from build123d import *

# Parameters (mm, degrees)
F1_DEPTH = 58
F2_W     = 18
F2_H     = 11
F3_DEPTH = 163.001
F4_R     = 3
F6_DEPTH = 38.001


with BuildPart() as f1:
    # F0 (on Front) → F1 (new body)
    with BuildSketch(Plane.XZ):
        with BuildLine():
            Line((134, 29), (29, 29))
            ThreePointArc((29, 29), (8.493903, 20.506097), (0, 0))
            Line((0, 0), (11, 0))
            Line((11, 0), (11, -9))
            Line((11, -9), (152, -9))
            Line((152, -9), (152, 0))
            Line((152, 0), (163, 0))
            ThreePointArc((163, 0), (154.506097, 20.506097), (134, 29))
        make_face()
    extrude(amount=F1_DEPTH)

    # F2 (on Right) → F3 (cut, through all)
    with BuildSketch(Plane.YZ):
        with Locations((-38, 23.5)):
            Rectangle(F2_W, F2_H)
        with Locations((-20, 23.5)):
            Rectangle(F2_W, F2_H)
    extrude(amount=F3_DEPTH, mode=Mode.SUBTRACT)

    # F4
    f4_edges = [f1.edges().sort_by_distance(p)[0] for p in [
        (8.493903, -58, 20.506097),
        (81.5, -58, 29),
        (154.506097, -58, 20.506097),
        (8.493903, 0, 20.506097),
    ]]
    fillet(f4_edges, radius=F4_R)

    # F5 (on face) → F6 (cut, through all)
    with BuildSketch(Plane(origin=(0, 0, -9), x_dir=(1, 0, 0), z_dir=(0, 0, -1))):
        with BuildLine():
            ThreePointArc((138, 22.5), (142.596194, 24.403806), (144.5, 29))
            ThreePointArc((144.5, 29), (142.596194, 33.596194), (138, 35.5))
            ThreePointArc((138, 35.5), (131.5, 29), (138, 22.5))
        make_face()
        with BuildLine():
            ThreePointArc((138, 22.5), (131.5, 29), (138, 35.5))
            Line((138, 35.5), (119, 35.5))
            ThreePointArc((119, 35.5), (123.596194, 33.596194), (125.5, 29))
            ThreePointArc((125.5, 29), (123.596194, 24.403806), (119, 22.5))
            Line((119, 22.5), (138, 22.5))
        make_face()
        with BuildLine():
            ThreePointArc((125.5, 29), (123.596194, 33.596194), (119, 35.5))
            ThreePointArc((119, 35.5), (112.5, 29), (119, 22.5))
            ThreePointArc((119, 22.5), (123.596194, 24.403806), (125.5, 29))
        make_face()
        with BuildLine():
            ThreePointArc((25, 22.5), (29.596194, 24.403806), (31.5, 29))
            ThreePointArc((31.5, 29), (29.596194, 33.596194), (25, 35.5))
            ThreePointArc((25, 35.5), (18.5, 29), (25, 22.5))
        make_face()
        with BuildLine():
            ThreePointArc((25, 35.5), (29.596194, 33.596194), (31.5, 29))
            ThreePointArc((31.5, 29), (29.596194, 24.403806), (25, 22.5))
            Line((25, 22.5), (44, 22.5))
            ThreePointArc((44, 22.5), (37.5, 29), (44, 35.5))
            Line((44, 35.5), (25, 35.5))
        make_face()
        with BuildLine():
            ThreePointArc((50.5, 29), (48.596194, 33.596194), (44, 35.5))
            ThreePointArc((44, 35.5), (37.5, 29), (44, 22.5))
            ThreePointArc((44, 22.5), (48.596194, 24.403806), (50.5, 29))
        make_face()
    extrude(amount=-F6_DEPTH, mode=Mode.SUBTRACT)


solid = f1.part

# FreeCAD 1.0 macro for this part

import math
import FreeCAD as App
import Part
import Sketcher
from FreeCAD import Vector


def edges_at(feature, points):
    """Names of the edges that pass closest to the given points."""
    edges = feature.Shape.Edges
    near = lambda p: min(range(len(edges)), key=lambda i: edges[i].distToShape(Part.Vertex(*p))[0])
    return sorted({f"Edge{near(p) + 1}" for p in points})


def add_polygon(sketch, points):
    """Adds a closed chain of lines whose ends are joined by coincident constraints."""
    first, n = sketch.GeometryCount, len(points)
    for a, b in zip(points, points[1:] + points[:1]):
        sketch.addGeometry(Part.LineSegment(App.Vector(*a, 0), App.Vector(*b, 0)), False)
    for i in range(n):
        sketch.addConstraint(Sketcher.Constraint("Coincident", first + i, 2, first + (i + 1) % n, 1))

doc = App.newDocument("Part")
params = doc.addObject("Spreadsheet::Sheet", "Params")
for row, (alias, value) in enumerate([
    ("sketch1_radius", "28.999999 mm"),
    ("sketch1_width", "105 mm"),
    ("sketch1_width2", "11 mm"),
    ("sketch1_height", "9 mm"),
    ("pad1_length", "58 mm"),
    ("sketch2_width", "36 mm"),
    ("sketch2_height", "11 mm"),
    ("fillet_radius", "3 mm"),
    ("sketch3_radius", "6.5 mm"),
    ("sketch3_width", "19 mm"),
], start=1):
    params.set(f"A{row}", alias)
    params.set(f"B{row}", "=" + value)
    params.setAlias(f"B{row}", alias)

body = doc.addObject("PartDesign::Body", "Body")

# Sketch on XZ plane
sketch1 = body.newObject("Sketcher::SketchObject", "Sketch")
sketch1.AttachmentSupport = (doc.getObject("XZ_Plane"), [""])
sketch1.MapMode = "FlatFace"
sketch1.addGeometry([
    Part.LineSegment(Vector(134, 29, 0), Vector(29, 29, 0)),  # 0
    Part.ArcOfCircle(Part.Circle(Vector(28.999999, 0.000001, 0), Vector(0, 0, 1), 28.999999), math.radians(89.999998), math.radians(180.000002)),  # 1
    Part.LineSegment(Vector(0, 0, 0), Vector(11, 0, 0)),  # 2
    Part.LineSegment(Vector(11, 0, 0), Vector(11, -9, 0)),  # 3
    Part.LineSegment(Vector(11, -9, 0), Vector(152, -9, 0)),  # 4
    Part.LineSegment(Vector(152, -9, 0), Vector(152, 0, 0)),  # 5
    Part.LineSegment(Vector(152, 0, 0), Vector(163, 0, 0)),  # 6
    Part.ArcOfCircle(Part.Circle(Vector(134.000001, 0.000001, 0), Vector(0, 0, 1), 28.999999), math.radians(-0.000002), math.radians(90.000002)),  # 7
], False)
sketch1.addConstraint([
    Sketcher.Constraint("Tangent", 0, 2, 1, 1),
    Sketcher.Constraint("Coincident", 1, 2, 2, 1),
    Sketcher.Constraint("Coincident", 2, 2, 3, 1),
    Sketcher.Constraint("Coincident", 3, 2, 4, 1),
    Sketcher.Constraint("Coincident", 4, 2, 5, 1),
    Sketcher.Constraint("Coincident", 5, 2, 6, 1),
    Sketcher.Constraint("Coincident", 6, 2, 7, 1),
    Sketcher.Constraint("Tangent", 7, 2, 0, 1),
    Sketcher.Constraint("Horizontal", 0),
    Sketcher.Constraint("Horizontal", 2),
    Sketcher.Constraint("Vertical", 3),
    Sketcher.Constraint("Horizontal", 4),
    Sketcher.Constraint("Vertical", 5),
    Sketcher.Constraint("Horizontal", 6),
    Sketcher.Constraint("Coincident", 1, 2, -1, 1),
    Sketcher.Constraint("Equal", 1, 7),
    Sketcher.Constraint("PointOnObject", 1, 3, -1),
    Sketcher.Constraint("PointOnObject", 5, 2, -1),
    Sketcher.Constraint("Equal", 2, 6),
    Sketcher.Constraint("Radius", 1, 28.999999),
    Sketcher.Constraint("DistanceX", 0, 2, 0, 1, 105.0),
    Sketcher.Constraint("DistanceX", 2, 1, 2, 2, 11.0),
    Sketcher.Constraint("DistanceY", 3, 2, 3, 1, 9.0),
])
sketch1.setExpression("Constraints[19]", "Params.sketch1_radius")
sketch1.setExpression("Constraints[20]", "Params.sketch1_width")
sketch1.setExpression("Constraints[21]", "Params.sketch1_width2")
sketch1.setExpression("Constraints[22]", "Params.sketch1_height")
pad1 = body.newObject("PartDesign::Pad", "Pad")
pad1.Profile = sketch1
pad1.setExpression("Length", "Params.pad1_length")

# Sketch on YZ plane
sketch2 = body.newObject("Sketcher::SketchObject", "Sketch001")
sketch2.AttachmentSupport = (doc.getObject("YZ_Plane"), [""])
sketch2.MapMode = "FlatFace"
add_polygon(sketch2, [(-47, 29), (-47, 18), (-11, 18), (-11, 29)])  # lines 0-3
sketch2.addConstraint([
    Sketcher.Constraint("Vertical", 0),
    Sketcher.Constraint("Horizontal", 1),
    Sketcher.Constraint("Vertical", 2),
    Sketcher.Constraint("Horizontal", 3),
    Sketcher.Constraint("DistanceX", 1, 1, 1, 2, 36.0),
    Sketcher.Constraint("DistanceY", 0, 2, 0, 1, 11.0),
    Sketcher.Constraint("DistanceX", 0, 2, -1, 1, 47.0),
    Sketcher.Constraint("DistanceY", -1, 1, 0, 2, 18.0),
])
sketch2.setExpression("Constraints[8]", "Params.sketch2_width")
sketch2.setExpression("Constraints[9]", "Params.sketch2_height")
pocket1 = body.newObject("PartDesign::Pocket", "Pocket")
pocket1.Profile = sketch2
pocket1.Type = "ThroughAll"
pocket1.Reversed = True
doc.recompute()

fillet = body.newObject("PartDesign::Fillet", "Fillet")
fillet.Base = (pocket1, edges_at(pocket1, [
    (8.494, -58, 20.506),
    (81.5, -58, 29),
    (154.506, -58, 20.506),
    (8.494, 0, 20.506),
]))
fillet.setExpression("Radius", "Params.fillet_radius")

# Sketch on XY plane
sketch3 = body.newObject("Sketcher::SketchObject", "Sketch002")
sketch3.AttachmentSupport = (doc.getObject("XY_Plane"), [""])
sketch3.MapMode = "FlatFace"
sketch3.AttachmentOffset = App.Placement(Vector(0, 0, -9), App.Rotation())
sketch3.addGeometry([
    Part.ArcOfCircle(Part.Circle(Vector(138, -29, 0), Vector(0, 0, 1), 6.5), math.radians(0.000002), math.radians(89.999998)),  # 0
    Part.ArcOfCircle(Part.Circle(Vector(138, -29, 0), Vector(0, 0, 1), 6.5), math.radians(-89.999998), math.radians(-0.000002)),  # 1
    Part.LineSegment(Vector(138, -35.5, 0), Vector(119, -35.5, 0)),  # 2
    Part.ArcOfCircle(Part.Circle(Vector(119, -29, 0), Vector(0, 0, 1), 6.5), math.radians(90), math.radians(270)),  # 3
    Part.LineSegment(Vector(119, -22.5, 0), Vector(138, -22.5, 0)),  # 4
    Part.ArcOfCircle(Part.Circle(Vector(25, -29, 0), Vector(0, 0, 1), 6.5), math.radians(90), math.radians(270)),  # 5
    Part.LineSegment(Vector(25, -22.5, 0), Vector(44, -22.5, 0)),  # 6
    Part.ArcOfCircle(Part.Circle(Vector(44, -29, 0), Vector(0, 0, 1), 6.5), math.radians(0.000002), math.radians(89.999998)),  # 7
    Part.ArcOfCircle(Part.Circle(Vector(44, -29, 0), Vector(0, 0, 1), 6.5), math.radians(-89.999998), math.radians(-0.000002)),  # 8
    Part.LineSegment(Vector(44, -35.5, 0), Vector(25, -35.5, 0)),  # 9
], False)
sketch3.addConstraint([
    Sketcher.Constraint("Tangent", 0, 1, 1, 2),
    Sketcher.Constraint("Tangent", 1, 1, 2, 1),
    Sketcher.Constraint("Tangent", 2, 2, 3, 2),
    Sketcher.Constraint("Tangent", 3, 1, 4, 1),
    Sketcher.Constraint("Tangent", 4, 2, 0, 2),
    Sketcher.Constraint("Tangent", 5, 1, 6, 1),
    Sketcher.Constraint("Tangent", 6, 2, 7, 2),
    Sketcher.Constraint("Tangent", 7, 1, 8, 2),
    Sketcher.Constraint("Tangent", 8, 1, 9, 1),
    Sketcher.Constraint("Tangent", 9, 2, 5, 2),
    Sketcher.Constraint("Horizontal", 2),
    Sketcher.Constraint("Horizontal", 4),
    Sketcher.Constraint("Horizontal", 6),
    Sketcher.Constraint("Horizontal", 9),
    Sketcher.Constraint("Equal", 0, 1),
    Sketcher.Constraint("Equal", 3, 5),
    Sketcher.Constraint("Equal", 5, 7),
    Sketcher.Constraint("Horizontal", 3, 3, 5, 3),
    Sketcher.Constraint("Horizontal", 8, 3, 0, 1),
    Sketcher.Constraint("Horizontal", 0, 1, 7, 1),
    Sketcher.Constraint("Equal", 4, 6),
    Sketcher.Constraint("Radius", 0, 6.5),
    Sketcher.Constraint("DistanceX", 2, 2, 2, 1, 19.0),
    Sketcher.Constraint("DistanceX", -1, 1, 0, 3, 138.0),
    Sketcher.Constraint("DistanceY", 0, 3, -1, 1, 29.0),
    Sketcher.Constraint("DistanceX", -1, 1, 5, 3, 25.0),
])
sketch3.setExpression("Constraints[21]", "Params.sketch3_radius")
sketch3.setExpression("Constraints[22]", "Params.sketch3_width")
pocket2 = body.newObject("PartDesign::Pocket", "Pocket001")
pocket2.Profile = sketch3
pocket2.Type = "ThroughAll"
pocket2.Reversed = True

doc.recompute()
